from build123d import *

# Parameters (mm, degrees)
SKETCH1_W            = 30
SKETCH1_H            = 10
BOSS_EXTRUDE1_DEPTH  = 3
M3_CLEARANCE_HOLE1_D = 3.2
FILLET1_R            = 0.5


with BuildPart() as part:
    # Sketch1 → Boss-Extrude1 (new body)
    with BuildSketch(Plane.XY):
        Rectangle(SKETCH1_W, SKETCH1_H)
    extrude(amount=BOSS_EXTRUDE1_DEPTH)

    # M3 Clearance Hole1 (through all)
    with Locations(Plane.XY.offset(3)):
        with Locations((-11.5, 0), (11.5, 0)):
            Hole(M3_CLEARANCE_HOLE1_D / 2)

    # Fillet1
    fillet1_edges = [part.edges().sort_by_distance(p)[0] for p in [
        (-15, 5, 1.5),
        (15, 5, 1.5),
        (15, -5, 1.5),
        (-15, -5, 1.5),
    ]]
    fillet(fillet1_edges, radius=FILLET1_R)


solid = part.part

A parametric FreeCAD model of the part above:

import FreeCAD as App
import Part
import Sketcher

V = App.Vector


def edges_at(feature, points):
    """Names of the edges that pass closest to the given points."""
    edges = feature.Shape.Edges
    near = lambda p: min(range(len(edges)), key=lambda i: edges[i].distToShape(Part.Vertex(*p))[0])
    return sorted({f"Edge{near(p) + 1}" for p in points})


def add_polygon(sketch, points):
    """Adds a closed chain of lines whose ends are joined by coincident constraints."""
    first, n = sketch.GeometryCount, len(points)
    for a, b in zip(points, points[1:] + points[:1]):
        sketch.addGeometry(Part.LineSegment(App.Vector(*a, 0), App.Vector(*b, 0)), False)
    for i in range(n):
        sketch.addConstraint(Sketcher.Constraint("Coincident", first + i, 2, first + (i + 1) % n, 1))

doc = App.newDocument("Part")
body = doc.addObject("PartDesign::Body", "Body")

sketch1 = body.newObject("Sketcher::SketchObject", "Sketch")
sketch1.AttachmentSupport = (doc.getObject("XY_Plane"), [""])
sketch1.MapMode = "FlatFace"
add_polygon(sketch1, [(-15, 5), (-15, -5), (15, -5), (15, 5)])
sketch1.addConstraint([
    Sketcher.Constraint("Vertical", 0),
    Sketcher.Constraint("Horizontal", 1),
    Sketcher.Constraint("Vertical", 2),
    Sketcher.Constraint("Horizontal", 3),
    Sketcher.Constraint("Symmetric", 0, 2, 2, 2, -1, 1),
    Sketcher.Constraint("DistanceX", 1, 1, 1, 2, 30.0),
    Sketcher.Constraint("DistanceY", 0, 2, 0, 1, 10.0),
])
pad1 = body.newObject("PartDesign::Pad", "Pad")
pad1.Profile = sketch1
pad1.Length = 3

sketch2 = body.newObject("Sketcher::SketchObject", "Sketch001")
sketch2.AttachmentSupport = (doc.getObject("XY_Plane"), [""])
sketch2.MapMode = "FlatFace"
sketch2.AttachmentOffset = App.Placement(V(0, 0, 3), App.Rotation())
sketch2.addGeometry([
    Part.Circle(V(-11.5, 0, 0), V(0, 0, 1), 1.6),
    Part.Circle(V(11.5, 0, 0), V(0, 0, 1), 1.6),
], False)
sketch2.addConstraint([
    Sketcher.Constraint("Equal", 0, 1),
    Sketcher.Constraint("Symmetric", 0, 3, 1, 3, -1, 1),
    Sketcher.Constraint("PointOnObject", 0, 3, -1),
    Sketcher.Constraint("Diameter", 0, 3.2),
    Sketcher.Constraint("DistanceX", 0, 3, 1, 3, 23.0),
])
doc.recompute()
hole = body.newObject("PartDesign::Hole", "Hole")
hole.Profile = sketch2
hole.ThreadType = "None"
hole.Diameter = 3.2
hole.DepthType = "ThroughAll"
doc.recompute()

fillet = body.newObject("PartDesign::Fillet", "Fillet")
fillet.Base = (hole, edges_at(hole, [
    (-15, 5, 1.5),
    (15, 5, 1.5),
    (15, -5, 1.5),
    (-15, -5, 1.5),
]))
fillet.Radius = 0.5

doc.recompute()
